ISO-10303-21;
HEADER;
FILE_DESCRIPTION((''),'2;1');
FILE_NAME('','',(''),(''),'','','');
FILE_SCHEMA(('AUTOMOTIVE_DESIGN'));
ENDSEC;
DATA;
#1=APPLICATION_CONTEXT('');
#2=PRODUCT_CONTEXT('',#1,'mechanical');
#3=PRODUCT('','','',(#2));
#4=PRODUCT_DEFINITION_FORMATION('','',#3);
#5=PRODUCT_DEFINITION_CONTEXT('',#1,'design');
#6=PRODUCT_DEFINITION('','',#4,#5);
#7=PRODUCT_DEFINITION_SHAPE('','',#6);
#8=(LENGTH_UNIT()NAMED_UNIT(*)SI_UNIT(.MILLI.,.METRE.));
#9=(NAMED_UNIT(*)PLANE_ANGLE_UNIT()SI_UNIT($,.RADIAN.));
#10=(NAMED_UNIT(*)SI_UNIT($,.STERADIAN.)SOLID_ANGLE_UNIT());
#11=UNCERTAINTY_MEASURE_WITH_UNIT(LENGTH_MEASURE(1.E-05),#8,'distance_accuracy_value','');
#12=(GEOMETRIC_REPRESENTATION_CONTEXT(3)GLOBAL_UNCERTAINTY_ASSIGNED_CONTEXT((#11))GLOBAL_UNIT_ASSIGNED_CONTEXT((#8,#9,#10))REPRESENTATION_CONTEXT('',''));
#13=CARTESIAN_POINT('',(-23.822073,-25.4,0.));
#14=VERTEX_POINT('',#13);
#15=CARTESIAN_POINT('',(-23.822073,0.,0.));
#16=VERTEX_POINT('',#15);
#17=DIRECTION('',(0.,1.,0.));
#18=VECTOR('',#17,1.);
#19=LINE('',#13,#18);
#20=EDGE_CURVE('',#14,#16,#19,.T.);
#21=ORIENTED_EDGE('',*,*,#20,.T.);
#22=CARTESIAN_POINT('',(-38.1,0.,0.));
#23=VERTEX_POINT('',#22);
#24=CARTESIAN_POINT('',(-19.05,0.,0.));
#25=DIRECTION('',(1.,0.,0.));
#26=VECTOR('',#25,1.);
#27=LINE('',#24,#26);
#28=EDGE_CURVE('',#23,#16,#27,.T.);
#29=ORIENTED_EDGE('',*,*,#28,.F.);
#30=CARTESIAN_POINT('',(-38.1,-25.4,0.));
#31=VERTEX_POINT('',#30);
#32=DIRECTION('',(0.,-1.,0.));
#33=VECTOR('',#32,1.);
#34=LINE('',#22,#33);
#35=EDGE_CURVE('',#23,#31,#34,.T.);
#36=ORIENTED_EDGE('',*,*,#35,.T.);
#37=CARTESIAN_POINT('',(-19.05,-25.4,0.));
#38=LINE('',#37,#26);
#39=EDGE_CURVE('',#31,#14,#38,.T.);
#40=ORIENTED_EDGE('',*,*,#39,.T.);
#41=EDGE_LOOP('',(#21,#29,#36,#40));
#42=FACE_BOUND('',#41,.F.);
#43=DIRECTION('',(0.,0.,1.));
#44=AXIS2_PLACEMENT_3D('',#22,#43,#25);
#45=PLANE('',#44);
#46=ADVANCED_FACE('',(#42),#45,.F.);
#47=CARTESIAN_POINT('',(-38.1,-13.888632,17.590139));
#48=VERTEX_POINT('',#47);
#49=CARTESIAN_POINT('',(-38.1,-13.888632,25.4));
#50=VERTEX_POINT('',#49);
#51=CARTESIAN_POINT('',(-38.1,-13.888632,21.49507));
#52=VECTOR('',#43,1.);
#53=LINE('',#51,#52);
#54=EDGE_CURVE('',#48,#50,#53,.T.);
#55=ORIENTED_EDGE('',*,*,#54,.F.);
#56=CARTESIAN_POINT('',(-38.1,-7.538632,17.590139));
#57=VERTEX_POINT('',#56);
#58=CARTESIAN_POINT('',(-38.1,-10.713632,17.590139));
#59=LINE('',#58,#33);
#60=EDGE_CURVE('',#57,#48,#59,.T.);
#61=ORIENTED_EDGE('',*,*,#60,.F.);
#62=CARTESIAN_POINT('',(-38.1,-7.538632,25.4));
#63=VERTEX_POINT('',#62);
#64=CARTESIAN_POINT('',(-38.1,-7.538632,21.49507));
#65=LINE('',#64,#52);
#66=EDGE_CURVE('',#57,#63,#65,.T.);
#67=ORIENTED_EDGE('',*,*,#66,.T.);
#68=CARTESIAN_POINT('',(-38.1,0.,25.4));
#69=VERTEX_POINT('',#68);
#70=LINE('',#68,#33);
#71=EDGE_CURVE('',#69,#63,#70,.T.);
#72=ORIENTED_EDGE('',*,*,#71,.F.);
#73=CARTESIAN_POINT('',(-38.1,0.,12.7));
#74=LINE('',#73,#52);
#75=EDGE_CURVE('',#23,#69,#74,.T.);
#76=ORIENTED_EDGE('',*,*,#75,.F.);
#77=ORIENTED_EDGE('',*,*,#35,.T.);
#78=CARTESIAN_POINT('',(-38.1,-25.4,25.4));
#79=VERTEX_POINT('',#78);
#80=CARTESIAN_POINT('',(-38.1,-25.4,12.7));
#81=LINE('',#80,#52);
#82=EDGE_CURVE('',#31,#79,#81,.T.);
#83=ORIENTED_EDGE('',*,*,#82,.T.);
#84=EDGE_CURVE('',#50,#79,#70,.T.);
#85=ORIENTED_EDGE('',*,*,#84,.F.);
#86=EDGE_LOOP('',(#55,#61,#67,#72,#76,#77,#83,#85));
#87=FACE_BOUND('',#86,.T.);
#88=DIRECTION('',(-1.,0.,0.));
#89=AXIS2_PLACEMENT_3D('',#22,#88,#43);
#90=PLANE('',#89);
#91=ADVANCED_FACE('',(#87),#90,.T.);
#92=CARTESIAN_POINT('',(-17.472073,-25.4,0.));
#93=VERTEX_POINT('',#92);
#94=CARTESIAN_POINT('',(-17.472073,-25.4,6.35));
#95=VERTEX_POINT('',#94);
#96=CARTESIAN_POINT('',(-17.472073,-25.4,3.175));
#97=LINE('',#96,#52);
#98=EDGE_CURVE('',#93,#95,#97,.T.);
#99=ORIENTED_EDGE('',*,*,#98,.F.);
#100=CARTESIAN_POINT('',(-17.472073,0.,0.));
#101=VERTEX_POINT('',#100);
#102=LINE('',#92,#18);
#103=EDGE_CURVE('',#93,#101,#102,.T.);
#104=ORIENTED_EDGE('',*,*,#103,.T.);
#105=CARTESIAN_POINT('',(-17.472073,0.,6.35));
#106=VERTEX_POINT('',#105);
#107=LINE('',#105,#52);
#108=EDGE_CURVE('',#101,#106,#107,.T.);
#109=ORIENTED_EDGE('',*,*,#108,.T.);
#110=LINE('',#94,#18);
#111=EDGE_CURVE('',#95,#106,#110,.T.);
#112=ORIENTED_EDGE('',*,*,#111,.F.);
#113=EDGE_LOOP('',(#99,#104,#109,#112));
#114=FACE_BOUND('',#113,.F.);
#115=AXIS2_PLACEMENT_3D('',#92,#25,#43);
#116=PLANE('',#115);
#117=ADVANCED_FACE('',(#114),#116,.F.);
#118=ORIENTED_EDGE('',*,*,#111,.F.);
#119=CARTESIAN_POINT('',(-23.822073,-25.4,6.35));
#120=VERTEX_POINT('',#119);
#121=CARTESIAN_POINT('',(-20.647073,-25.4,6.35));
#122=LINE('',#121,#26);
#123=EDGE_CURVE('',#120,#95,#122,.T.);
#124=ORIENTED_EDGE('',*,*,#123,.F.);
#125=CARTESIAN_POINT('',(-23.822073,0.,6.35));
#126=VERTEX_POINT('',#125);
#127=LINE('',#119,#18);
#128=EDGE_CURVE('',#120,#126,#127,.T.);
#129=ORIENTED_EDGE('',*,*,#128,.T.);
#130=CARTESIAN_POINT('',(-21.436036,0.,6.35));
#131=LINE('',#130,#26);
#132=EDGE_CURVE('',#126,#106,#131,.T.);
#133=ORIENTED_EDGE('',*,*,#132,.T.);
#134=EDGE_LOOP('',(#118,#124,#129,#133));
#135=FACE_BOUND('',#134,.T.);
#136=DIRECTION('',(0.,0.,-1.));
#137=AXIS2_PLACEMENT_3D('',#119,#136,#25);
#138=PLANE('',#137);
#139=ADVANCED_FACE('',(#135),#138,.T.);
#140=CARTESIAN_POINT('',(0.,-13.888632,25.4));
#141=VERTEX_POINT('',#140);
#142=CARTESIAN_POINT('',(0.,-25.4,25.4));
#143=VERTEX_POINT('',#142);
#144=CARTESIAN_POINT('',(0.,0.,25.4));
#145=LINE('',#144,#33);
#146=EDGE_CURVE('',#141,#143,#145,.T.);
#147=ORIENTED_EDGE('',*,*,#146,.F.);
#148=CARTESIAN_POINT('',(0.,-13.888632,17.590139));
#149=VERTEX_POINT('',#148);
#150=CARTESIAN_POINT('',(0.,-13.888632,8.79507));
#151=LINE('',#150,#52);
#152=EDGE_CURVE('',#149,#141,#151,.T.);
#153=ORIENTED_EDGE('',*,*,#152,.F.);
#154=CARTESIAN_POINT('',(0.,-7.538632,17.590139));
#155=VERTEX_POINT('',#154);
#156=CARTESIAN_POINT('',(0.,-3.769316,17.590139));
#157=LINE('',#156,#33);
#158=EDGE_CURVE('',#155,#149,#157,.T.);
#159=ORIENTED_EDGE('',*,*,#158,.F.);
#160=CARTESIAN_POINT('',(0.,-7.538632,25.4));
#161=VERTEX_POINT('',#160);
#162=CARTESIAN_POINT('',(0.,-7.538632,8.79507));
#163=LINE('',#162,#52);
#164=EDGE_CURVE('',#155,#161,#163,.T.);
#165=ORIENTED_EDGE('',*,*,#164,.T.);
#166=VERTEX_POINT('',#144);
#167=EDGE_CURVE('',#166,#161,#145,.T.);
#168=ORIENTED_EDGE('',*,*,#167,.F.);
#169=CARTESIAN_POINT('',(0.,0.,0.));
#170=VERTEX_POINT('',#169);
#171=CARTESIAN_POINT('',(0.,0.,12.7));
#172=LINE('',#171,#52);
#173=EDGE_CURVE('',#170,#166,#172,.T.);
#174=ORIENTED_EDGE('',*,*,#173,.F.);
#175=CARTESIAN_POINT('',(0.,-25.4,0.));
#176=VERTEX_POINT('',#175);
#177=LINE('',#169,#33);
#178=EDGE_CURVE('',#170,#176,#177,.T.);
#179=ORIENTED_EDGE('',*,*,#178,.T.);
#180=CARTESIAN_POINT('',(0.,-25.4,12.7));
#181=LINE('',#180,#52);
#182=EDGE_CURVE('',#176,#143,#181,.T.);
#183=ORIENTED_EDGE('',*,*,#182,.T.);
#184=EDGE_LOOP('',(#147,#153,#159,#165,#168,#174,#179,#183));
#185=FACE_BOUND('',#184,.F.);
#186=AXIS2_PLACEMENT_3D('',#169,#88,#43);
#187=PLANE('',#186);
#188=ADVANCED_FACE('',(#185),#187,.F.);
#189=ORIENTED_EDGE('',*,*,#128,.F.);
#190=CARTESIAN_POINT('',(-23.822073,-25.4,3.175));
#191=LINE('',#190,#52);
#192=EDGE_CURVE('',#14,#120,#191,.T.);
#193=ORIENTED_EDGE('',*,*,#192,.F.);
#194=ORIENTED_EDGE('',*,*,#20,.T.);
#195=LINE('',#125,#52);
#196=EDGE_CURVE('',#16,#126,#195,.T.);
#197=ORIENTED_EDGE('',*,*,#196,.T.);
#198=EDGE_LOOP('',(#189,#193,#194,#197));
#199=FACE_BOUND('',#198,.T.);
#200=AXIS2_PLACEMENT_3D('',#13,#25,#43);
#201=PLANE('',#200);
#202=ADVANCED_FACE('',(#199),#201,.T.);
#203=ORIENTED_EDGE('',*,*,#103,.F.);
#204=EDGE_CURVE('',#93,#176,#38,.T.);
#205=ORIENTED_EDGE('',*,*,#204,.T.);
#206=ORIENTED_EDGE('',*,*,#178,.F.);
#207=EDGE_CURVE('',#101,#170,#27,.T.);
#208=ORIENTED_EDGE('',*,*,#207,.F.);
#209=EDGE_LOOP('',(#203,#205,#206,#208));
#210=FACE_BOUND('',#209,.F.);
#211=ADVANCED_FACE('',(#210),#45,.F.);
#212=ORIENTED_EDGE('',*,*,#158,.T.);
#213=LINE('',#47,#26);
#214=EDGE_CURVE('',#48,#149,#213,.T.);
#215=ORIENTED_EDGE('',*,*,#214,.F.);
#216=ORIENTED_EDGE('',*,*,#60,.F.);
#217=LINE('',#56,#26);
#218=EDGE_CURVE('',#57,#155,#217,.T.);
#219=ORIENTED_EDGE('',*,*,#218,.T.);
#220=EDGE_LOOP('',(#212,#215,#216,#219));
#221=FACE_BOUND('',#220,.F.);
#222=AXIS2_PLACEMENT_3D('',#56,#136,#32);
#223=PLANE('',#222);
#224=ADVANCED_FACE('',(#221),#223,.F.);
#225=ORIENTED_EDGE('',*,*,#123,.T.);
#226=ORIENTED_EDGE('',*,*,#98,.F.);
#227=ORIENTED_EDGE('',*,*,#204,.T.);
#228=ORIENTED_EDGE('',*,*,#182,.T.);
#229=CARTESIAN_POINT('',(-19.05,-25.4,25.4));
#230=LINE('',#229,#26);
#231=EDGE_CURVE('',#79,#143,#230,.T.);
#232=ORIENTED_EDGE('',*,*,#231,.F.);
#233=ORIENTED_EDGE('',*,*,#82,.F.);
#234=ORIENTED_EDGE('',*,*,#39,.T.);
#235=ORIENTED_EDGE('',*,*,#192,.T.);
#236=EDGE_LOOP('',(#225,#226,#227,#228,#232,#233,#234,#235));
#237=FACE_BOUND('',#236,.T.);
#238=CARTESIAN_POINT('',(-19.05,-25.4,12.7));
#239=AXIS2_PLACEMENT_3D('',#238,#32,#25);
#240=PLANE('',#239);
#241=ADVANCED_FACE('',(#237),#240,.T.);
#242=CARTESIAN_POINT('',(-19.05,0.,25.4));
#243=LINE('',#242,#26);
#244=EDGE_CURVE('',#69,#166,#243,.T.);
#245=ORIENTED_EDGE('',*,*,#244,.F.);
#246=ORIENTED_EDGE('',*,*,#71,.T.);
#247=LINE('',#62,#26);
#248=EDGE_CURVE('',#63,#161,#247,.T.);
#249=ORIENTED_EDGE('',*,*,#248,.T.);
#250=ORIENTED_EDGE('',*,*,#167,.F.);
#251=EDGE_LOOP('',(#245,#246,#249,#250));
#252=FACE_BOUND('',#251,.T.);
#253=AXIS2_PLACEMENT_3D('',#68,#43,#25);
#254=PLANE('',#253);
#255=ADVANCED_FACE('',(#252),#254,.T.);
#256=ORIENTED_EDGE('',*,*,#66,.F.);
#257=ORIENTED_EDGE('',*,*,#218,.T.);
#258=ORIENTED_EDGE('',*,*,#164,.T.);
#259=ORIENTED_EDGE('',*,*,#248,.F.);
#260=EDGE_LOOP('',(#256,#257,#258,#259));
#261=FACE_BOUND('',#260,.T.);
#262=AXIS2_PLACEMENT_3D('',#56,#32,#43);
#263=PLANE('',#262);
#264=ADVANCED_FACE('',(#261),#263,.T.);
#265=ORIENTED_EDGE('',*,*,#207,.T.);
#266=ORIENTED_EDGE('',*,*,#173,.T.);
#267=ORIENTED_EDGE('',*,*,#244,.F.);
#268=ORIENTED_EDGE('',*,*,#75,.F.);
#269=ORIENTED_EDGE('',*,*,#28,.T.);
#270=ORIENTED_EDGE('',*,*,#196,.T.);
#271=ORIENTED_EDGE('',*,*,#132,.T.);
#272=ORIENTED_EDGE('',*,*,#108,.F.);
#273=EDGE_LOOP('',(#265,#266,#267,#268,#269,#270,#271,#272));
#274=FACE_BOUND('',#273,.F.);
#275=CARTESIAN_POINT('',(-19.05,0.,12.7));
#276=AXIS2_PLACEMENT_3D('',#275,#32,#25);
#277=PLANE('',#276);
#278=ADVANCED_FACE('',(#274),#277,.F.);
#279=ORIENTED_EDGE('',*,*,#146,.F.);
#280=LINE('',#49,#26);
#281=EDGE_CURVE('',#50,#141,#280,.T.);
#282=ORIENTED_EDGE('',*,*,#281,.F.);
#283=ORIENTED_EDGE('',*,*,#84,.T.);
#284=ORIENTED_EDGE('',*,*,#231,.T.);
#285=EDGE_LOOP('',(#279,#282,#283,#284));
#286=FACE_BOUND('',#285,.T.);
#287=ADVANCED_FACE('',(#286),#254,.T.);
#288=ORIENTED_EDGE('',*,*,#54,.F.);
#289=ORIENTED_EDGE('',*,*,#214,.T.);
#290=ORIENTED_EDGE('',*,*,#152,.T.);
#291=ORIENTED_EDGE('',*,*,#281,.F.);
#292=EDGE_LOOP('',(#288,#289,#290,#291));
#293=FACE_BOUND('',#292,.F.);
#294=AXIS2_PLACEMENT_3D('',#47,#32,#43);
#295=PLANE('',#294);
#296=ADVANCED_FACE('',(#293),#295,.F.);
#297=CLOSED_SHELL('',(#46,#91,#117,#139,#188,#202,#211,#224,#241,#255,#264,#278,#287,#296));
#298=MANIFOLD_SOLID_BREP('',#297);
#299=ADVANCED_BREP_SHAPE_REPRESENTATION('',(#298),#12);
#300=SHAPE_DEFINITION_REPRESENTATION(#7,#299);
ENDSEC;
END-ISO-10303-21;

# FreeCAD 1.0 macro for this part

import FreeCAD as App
import Part
import Sketcher
Q = App.Units.Quantity


def add_polygon(sketch, points):
    """Adds a closed chain of lines whose ends are joined by coincident constraints."""
    first, n = sketch.GeometryCount, len(points)
    for a, b in zip(points, points[1:] + points[:1]):
        sketch.addGeometry(Part.LineSegment(App.Vector(*a, 0), App.Vector(*b, 0)), False)
    for i in range(n):
        sketch.addConstraint(Sketcher.Constraint("Coincident", first + i, 2, first + (i + 1) % n, 1))

doc = App.newDocument("Part")
body = doc.addObject("PartDesign::Body", "Body")

sketch1 = doc.addObject("Sketcher::SketchObject", "Sketch")
body.addObject(sketch1)
sketch1.AttachmentSupport = (doc.XZ_Plane, [""])
sketch1.MapMode = "FlatFace"
add_polygon(sketch1, [(-38, 25), (-38, 0), (0, 0), (0, 25)])
sketch1.addConstraint([
    Sketcher.Constraint("Vertical", 0),
    Sketcher.Constraint("Horizontal", 1),
    Sketcher.Constraint("Vertical", 2),
    Sketcher.Constraint("Horizontal", 3),
    Sketcher.Constraint("Coincident", 1, 2, -1, 1),
    Sketcher.Constraint("DistanceY", 0, 2, 0, 1, Q("1 in")),
    Sketcher.Constraint("DistanceX", 1, 1, 1, 2, Q("1.5 in")),
])
pad1 = doc.addObject("PartDesign::Pad", "Pad")
body.addObject(pad1)
pad1.Profile = sketch1
pad1.Length = Q("1 in")

sketch2 = doc.addObject("Sketcher::SketchObject", "Sketch001")
body.addObject(sketch2)
sketch2.AttachmentSupport = (doc.YZ_Plane, [""])
sketch2.MapMode = "FlatFace"
sketch2.AttachmentOffset = App.Placement(App.Vector(0, 0, -1.5 * 25.4), App.Rotation())
add_polygon(sketch2, [(-8, 25), (-8, 18), (-14, 18), (-14, 25)])
sketch2.addConstraint([
    Sketcher.Constraint("Vertical", 0),
    Sketcher.Constraint("Horizontal", 1),
    Sketcher.Constraint("Vertical", 2),
    Sketcher.Constraint("Horizontal", 3),
    Sketcher.Constraint("DistanceY", -1, 1, 2, 2, Q("1 in")),
    Sketcher.Constraint("DistanceX", 1, 2, 1, 1, Q("0.25 in")),
    Sketcher.Constraint("DistanceY", 0, 2, 0, 1, Q("7.809861 mm")),
    Sketcher.Constraint("DistanceX", 0, 2, -1, 1, Q("7.538632 mm")),
])
pocket1 = doc.addObject("PartDesign::Pocket", "Pocket")
body.addObject(pocket1)
pocket1.Profile = sketch2
pocket1.Type = "ThroughAll"
pocket1.Reversed = True

sketch3 = doc.addObject("Sketcher::SketchObject", "Sketch002")
body.addObject(sketch3)
sketch3.AttachmentSupport = (doc.XZ_Plane, [""])
sketch3.MapMode = "FlatFace"
sketch3.AttachmentOffset = App.Placement(App.Vector(0, 0, 1 * 25.4), App.Rotation())
add_polygon(sketch3, [(-24, 6), (-24, 0), (-17, 0), (-17, 6)])
sketch3.addConstraint([
    Sketcher.Constraint("Vertical", 0),
    Sketcher.Constraint("Horizontal", 1),
    Sketcher.Constraint("Vertical", 2),
    Sketcher.Constraint("Horizontal", 3),
    Sketcher.Constraint("PointOnObject", 0, 2, -1),
    Sketcher.Constraint("Equal", 3, 0),
    Sketcher.Constraint("DistanceX", 1, 1, 1, 2, Q("0.25 in")),
    Sketcher.Constraint("DistanceX", 0, 2, -1, 1, Q("23.822073 mm")),
])
pocket2 = doc.addObject("PartDesign::Pocket", "Pocket001")
body.addObject(pocket2)
pocket2.Profile = sketch3
pocket2.Type = "ThroughAll"

doc.recompute()
